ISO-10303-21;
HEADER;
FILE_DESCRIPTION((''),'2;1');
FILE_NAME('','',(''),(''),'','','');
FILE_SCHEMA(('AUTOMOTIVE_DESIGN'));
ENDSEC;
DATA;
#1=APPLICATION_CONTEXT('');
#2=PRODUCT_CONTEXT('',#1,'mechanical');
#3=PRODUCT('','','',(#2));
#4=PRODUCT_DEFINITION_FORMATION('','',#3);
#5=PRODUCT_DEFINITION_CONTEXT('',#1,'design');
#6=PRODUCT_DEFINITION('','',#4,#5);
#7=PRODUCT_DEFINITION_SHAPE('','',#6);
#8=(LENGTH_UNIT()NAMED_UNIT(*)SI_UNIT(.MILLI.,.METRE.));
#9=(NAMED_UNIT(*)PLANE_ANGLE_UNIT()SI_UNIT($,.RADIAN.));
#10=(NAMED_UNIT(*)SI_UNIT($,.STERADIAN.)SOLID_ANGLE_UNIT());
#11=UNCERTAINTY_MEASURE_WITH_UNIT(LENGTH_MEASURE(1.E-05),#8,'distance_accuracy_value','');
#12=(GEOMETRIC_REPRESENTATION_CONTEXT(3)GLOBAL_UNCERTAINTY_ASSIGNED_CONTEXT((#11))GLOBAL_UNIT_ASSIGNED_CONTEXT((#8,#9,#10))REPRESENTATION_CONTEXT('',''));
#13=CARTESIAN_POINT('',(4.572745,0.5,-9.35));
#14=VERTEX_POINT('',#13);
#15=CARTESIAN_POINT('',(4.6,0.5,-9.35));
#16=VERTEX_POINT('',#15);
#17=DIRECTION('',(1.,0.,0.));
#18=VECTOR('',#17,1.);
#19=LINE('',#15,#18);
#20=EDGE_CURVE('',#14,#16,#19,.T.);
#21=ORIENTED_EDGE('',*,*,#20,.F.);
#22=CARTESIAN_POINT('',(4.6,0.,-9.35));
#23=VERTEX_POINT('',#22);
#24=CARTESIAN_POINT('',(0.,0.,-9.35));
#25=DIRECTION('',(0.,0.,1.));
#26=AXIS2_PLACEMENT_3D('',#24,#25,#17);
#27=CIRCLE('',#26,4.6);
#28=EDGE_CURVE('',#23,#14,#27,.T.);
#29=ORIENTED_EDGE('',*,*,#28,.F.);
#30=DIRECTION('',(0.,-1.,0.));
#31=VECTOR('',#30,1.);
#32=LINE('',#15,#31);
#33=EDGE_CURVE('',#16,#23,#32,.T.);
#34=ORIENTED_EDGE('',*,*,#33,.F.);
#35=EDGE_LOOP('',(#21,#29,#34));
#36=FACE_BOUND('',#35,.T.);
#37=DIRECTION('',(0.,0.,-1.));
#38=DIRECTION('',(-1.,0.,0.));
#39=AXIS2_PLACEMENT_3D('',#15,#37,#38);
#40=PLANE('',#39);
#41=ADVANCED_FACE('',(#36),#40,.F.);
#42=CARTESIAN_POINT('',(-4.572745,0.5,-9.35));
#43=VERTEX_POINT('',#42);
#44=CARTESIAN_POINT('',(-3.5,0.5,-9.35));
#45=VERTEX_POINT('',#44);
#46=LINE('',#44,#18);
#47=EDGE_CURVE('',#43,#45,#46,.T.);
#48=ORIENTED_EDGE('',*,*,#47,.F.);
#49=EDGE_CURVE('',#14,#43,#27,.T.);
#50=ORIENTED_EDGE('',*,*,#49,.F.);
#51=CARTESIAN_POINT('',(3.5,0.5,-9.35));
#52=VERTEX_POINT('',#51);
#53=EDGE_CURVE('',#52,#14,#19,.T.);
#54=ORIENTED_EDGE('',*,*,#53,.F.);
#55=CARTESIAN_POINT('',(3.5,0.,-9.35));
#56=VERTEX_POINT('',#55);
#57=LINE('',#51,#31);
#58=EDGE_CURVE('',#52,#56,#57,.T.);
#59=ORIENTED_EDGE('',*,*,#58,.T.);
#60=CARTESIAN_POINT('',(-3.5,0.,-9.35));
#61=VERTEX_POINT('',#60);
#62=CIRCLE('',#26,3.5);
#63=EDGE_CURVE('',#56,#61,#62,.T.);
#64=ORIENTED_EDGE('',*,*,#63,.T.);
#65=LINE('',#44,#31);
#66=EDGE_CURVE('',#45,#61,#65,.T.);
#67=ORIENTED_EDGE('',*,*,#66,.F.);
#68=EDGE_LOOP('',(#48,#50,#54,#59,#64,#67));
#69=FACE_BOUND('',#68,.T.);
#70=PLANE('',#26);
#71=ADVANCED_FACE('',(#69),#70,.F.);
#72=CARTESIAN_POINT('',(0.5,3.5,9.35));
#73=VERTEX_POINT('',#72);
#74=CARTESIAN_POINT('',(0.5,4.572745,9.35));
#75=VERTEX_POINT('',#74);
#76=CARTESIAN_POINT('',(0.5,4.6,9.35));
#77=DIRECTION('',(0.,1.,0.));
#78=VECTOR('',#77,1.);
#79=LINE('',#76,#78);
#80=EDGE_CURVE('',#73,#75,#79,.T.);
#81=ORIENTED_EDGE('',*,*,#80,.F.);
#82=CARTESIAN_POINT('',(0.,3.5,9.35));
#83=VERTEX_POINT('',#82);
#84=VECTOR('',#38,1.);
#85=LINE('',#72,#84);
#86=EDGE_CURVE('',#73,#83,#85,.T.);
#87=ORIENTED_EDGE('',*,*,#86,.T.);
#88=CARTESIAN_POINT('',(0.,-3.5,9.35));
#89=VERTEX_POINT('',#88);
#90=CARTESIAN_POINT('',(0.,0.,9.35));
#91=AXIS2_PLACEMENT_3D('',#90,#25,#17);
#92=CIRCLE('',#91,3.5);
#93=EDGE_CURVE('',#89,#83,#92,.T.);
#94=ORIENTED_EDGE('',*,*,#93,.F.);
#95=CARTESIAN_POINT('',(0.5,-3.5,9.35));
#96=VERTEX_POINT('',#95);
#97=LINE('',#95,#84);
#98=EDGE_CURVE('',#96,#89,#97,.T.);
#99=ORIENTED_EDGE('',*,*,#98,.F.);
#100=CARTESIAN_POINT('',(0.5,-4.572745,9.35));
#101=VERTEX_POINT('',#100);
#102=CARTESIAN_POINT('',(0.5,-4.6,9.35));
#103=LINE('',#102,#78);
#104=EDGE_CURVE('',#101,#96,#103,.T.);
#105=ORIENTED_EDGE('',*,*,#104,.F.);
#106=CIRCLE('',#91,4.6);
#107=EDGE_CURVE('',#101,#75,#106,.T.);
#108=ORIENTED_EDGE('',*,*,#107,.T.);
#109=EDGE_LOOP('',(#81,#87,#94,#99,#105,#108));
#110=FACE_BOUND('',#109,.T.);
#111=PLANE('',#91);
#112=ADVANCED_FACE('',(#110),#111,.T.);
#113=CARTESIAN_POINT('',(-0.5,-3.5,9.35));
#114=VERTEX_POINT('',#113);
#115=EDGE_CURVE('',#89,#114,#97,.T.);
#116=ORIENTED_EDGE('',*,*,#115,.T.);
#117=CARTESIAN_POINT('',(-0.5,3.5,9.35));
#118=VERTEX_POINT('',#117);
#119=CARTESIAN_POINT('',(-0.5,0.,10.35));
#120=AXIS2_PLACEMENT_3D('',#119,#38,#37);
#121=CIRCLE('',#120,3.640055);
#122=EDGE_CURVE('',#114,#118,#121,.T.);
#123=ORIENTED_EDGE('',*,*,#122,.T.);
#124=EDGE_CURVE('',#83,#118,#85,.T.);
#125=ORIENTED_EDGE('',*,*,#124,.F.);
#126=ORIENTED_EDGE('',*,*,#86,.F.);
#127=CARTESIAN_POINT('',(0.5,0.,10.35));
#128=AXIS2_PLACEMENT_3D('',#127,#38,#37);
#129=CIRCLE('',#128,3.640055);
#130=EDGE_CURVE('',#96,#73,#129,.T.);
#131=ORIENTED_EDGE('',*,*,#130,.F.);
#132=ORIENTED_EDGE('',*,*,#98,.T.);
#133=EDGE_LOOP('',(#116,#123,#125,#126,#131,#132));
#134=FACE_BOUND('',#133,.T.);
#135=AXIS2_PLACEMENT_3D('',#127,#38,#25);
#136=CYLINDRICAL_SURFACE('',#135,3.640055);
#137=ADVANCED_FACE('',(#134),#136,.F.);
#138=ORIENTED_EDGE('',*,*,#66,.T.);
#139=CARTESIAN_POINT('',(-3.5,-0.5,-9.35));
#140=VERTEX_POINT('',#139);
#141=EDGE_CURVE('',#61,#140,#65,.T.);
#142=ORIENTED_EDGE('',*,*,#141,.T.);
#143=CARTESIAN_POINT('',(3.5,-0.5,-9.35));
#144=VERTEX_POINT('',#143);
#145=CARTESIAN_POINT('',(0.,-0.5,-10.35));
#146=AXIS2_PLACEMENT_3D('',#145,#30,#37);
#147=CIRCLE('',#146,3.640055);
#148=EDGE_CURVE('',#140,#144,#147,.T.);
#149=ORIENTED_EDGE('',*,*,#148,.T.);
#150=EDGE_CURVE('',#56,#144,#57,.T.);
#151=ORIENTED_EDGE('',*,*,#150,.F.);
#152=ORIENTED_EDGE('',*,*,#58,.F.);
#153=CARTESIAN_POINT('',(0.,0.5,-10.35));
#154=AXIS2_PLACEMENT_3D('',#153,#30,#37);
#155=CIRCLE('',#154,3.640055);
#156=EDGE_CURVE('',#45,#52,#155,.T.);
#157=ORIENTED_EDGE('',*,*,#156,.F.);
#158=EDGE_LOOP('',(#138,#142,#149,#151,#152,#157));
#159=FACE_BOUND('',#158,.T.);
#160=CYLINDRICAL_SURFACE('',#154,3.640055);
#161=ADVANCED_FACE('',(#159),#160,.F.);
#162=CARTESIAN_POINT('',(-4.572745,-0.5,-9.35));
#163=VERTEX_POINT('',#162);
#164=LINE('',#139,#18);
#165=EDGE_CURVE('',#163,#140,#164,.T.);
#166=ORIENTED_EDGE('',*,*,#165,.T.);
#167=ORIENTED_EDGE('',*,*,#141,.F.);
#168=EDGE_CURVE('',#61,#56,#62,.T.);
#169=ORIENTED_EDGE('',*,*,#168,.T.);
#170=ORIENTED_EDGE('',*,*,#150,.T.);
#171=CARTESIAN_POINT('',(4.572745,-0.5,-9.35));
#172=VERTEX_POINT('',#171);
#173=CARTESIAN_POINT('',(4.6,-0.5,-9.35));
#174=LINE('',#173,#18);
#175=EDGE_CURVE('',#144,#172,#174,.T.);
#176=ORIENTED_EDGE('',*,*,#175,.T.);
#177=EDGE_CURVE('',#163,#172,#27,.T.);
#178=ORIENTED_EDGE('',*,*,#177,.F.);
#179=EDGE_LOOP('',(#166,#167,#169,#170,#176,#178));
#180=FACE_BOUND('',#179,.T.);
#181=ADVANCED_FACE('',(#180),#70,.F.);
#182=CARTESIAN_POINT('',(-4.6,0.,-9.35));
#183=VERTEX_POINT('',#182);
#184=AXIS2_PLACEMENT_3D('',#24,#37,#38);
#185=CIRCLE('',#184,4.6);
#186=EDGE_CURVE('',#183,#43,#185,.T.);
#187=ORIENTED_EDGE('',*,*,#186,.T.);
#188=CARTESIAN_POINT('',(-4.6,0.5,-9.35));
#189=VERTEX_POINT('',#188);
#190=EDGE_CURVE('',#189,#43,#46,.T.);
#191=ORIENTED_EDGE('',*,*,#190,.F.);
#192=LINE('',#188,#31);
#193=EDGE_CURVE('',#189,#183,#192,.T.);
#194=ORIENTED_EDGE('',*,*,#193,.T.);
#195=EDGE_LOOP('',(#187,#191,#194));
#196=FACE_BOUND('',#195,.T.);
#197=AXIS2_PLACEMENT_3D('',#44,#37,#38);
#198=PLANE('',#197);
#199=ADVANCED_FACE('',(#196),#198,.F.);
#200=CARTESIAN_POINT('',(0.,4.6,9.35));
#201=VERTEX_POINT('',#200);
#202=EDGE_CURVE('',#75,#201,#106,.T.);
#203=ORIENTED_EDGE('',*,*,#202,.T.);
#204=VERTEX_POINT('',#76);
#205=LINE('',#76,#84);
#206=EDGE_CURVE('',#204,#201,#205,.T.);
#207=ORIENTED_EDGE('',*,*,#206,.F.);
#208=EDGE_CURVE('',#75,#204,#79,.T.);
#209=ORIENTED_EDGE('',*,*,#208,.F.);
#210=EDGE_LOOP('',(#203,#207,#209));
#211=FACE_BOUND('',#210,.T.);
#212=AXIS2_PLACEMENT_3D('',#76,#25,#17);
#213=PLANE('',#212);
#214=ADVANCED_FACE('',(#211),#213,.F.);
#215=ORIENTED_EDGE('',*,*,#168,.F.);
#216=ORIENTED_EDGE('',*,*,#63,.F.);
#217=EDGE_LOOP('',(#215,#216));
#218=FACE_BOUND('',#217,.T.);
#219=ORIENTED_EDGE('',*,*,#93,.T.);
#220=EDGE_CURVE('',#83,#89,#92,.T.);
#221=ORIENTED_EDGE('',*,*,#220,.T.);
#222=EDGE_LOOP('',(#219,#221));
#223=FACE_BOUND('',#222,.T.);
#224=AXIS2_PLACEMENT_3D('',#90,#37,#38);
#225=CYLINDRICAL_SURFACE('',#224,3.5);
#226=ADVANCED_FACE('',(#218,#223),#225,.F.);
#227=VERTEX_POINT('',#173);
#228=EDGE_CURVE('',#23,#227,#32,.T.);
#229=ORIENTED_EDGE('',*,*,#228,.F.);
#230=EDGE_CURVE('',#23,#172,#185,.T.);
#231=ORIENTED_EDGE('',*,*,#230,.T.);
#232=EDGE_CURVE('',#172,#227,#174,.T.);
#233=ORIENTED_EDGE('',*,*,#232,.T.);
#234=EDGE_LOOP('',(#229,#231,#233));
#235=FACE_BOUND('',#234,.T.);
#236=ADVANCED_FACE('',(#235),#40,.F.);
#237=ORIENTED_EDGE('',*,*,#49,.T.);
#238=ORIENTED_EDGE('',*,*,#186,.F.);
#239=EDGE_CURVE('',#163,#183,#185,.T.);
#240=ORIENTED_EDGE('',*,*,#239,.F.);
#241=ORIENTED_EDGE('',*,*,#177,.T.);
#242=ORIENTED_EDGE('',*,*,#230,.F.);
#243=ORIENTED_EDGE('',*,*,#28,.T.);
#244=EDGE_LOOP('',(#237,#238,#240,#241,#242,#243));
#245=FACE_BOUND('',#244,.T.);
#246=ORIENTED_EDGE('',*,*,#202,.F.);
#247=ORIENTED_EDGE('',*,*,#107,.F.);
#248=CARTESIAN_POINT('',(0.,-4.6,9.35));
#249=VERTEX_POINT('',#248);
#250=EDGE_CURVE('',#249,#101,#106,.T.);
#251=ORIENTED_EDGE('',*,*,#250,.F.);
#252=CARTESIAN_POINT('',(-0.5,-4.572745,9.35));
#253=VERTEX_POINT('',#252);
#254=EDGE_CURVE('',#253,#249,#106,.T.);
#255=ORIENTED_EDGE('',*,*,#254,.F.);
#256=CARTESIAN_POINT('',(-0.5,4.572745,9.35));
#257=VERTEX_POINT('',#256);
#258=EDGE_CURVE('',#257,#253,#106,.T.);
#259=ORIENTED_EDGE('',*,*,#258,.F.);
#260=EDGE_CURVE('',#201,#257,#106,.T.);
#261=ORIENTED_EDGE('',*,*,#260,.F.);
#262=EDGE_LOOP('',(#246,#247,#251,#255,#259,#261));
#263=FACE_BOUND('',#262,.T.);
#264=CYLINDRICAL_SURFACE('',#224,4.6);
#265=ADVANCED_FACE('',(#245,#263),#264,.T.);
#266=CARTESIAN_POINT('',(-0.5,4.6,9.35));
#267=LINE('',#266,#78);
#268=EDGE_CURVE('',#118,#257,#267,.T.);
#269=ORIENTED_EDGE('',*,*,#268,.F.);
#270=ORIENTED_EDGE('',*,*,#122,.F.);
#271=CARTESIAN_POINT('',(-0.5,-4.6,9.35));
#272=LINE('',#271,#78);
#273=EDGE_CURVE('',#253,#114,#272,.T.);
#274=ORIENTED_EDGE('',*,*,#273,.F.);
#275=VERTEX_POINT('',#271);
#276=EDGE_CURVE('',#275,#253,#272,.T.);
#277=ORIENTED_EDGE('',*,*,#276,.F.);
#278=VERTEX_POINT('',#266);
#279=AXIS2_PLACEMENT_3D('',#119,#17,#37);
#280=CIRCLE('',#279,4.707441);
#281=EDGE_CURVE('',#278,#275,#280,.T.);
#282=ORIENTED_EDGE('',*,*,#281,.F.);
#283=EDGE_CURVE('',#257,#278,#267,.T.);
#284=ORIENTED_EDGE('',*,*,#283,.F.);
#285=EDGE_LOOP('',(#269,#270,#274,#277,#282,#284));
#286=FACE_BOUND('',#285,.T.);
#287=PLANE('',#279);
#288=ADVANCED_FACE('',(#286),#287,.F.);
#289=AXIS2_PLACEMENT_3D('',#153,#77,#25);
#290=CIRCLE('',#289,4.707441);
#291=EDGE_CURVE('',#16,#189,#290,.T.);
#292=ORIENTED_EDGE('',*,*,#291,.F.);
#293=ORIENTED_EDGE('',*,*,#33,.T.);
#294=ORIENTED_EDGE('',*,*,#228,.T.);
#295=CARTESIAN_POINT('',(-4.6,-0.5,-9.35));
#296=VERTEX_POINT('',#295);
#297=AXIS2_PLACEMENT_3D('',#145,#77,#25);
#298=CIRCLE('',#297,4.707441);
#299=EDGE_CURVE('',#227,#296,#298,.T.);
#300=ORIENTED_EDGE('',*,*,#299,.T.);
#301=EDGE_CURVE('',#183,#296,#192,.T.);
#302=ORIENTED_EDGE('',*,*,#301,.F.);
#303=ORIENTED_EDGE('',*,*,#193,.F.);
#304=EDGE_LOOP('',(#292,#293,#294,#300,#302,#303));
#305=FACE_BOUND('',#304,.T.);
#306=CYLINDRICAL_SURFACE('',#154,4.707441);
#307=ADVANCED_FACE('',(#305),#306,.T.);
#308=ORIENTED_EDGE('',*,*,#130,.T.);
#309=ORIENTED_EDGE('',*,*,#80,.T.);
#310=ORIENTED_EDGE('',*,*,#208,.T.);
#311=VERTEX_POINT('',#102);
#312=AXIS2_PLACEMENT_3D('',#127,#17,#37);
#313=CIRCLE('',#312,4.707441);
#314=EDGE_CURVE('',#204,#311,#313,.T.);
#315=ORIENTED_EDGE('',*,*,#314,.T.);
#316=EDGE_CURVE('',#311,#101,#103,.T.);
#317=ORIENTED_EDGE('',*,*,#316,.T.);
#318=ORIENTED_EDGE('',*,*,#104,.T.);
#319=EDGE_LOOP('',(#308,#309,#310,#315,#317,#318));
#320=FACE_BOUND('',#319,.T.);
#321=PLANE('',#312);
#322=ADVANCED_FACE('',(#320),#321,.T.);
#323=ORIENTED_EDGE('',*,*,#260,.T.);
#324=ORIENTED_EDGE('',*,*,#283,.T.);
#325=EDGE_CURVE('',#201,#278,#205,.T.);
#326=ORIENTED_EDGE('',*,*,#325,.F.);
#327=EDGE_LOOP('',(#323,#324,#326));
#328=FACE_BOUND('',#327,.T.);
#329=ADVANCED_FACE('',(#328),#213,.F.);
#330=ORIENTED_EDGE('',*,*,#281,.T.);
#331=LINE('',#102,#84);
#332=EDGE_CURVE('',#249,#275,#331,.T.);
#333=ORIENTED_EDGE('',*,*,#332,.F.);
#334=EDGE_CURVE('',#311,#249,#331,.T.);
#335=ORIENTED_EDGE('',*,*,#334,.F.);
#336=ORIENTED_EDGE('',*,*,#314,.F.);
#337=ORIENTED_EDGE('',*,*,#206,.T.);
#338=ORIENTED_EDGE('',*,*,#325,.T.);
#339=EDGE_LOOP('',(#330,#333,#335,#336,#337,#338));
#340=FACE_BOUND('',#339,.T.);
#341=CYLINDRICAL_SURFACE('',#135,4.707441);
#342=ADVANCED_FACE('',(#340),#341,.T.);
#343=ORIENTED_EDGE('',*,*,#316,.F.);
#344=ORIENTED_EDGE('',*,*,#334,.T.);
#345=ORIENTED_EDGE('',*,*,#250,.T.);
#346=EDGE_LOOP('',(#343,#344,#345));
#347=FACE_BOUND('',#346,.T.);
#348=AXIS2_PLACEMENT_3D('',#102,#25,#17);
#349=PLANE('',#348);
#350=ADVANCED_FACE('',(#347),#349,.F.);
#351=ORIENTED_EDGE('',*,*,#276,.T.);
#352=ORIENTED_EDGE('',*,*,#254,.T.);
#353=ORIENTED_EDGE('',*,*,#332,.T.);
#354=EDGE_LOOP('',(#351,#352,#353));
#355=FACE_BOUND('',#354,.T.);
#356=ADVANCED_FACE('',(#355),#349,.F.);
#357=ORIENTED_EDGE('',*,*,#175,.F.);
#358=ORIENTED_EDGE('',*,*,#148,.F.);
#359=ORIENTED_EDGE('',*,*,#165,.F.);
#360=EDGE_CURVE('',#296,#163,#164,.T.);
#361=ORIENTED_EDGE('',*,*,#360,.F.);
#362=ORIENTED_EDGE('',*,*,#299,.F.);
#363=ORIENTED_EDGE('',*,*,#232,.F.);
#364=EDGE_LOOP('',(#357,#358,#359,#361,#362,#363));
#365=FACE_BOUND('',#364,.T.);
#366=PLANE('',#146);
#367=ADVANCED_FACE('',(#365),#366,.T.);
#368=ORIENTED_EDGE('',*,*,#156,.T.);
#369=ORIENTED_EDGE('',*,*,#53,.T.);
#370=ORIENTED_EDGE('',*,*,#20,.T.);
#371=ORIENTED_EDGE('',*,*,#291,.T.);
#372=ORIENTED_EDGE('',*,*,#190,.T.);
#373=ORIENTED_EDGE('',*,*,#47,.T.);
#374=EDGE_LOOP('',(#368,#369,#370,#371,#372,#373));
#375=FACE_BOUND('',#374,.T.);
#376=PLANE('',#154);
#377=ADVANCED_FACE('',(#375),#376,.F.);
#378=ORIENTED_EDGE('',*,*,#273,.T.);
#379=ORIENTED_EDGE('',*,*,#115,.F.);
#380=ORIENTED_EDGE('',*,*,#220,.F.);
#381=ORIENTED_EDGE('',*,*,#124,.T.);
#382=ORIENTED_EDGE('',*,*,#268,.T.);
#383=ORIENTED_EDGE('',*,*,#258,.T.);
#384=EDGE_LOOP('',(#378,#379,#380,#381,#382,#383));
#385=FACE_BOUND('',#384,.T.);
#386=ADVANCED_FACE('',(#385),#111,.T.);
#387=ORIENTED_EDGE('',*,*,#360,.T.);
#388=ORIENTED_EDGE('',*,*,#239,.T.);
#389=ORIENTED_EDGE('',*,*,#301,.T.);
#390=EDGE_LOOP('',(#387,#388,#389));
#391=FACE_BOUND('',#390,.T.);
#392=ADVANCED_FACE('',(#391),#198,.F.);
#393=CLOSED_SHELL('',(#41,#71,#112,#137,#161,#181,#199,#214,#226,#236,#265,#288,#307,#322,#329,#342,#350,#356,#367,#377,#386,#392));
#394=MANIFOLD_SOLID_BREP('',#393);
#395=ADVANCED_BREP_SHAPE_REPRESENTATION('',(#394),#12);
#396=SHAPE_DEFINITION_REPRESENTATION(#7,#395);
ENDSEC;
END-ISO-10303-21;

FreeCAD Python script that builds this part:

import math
import FreeCAD as App
import Part
import Sketcher

doc = App.newDocument("Part")
params = doc.addObject("Spreadsheet::Sheet", "Params")
for row, (alias, value) in enumerate([
    ("sketch1_diameter", "7 mm"),
    ("sketch1_diameter2", "9.2 mm"),
    ("pad1_length", "18.7 mm"),
    ("sketch2_width", "1.1 mm"),
    ("pad2_length", "1 mm"),
    ("sketch3_width", "1.1 mm"),
    ("pad3_length", "1 mm"),
], start=1):
    params.set(f"A{row}", alias)
    params.set(f"B{row}", "=" + value)
    params.setAlias(f"B{row}", alias)

body = doc.addObject("PartDesign::Body", "Body")

sketch1 = doc.addObject("Sketcher::SketchObject", "Sketch")
body.addObject(sketch1)
sketch1.AttachmentSupport = (doc.XY_Plane, [""])
sketch1.MapMode = "FlatFace"
sketch1.addGeometry([
    Part.Circle(App.Vector(0, 0, 0), App.Vector(0, 0, 1), 4.6),
    Part.Circle(App.Vector(0, 0, 0), App.Vector(0, 0, 1), 3.5),
], False)
sketch1.addConstraint([
    Sketcher.Constraint("Coincident", 0, 3, -1, 1),
    Sketcher.Constraint("Coincident", 1, 3, -1, 1),
    Sketcher.Constraint("Diameter", 1, 7.0),
    Sketcher.Constraint("Diameter", 0, 9.2),
])
sketch1.setExpression("Constraints[2]", "Params.sketch1_diameter")
sketch1.setExpression("Constraints[3]", "Params.sketch1_diameter2")
pad1 = doc.addObject("PartDesign::Pad", "Pad")
body.addObject(pad1)
pad1.Profile = sketch1
pad1.setExpression("Length", "Params.pad1_length")
pad1.Midplane = True

sketch2 = doc.addObject("Sketcher::SketchObject", "Sketch001")
body.addObject(sketch2)
sketch2.AttachmentSupport = (doc.YZ_Plane, [""])
sketch2.MapMode = "FlatFace"
sketch2.addGeometry([
    Part.LineSegment(App.Vector(-4.6, 9.3, 0), App.Vector(-3.5, 9.3, 0)),
    Part.ArcOfCircle(Part.Circle(App.Vector(0, 10.3, 0), App.Vector(0, 0, 1), 3.6), math.radians(-16), math.radians(196)),
    Part.LineSegment(App.Vector(3.5, 9.3, 0), App.Vector(4.6, 9.3, 0)),
    Part.ArcOfCircle(Part.Circle(App.Vector(0, 10.3, 0), App.Vector(0, 0, 1), 4.7), math.radians(-12), math.radians(192)),
], False)
sketch2.addConstraint([
    Sketcher.Constraint("Coincident", 0, 2, 1, 2),
    Sketcher.Constraint("Coincident", 1, 1, 2, 1),
    Sketcher.Constraint("Coincident", 2, 2, 3, 1),
    Sketcher.Constraint("Coincident", 3, 2, 0, 1),
    Sketcher.Constraint("Horizontal", 0),
    Sketcher.Constraint("Horizontal", 2),
    Sketcher.Constraint("Coincident", 3, 3, 1, 3),
    Sketcher.Constraint("Symmetric", 0, 2, 1, 1, -2),
    Sketcher.Constraint("DistanceX", 0, 1, 0, 2, 1.1),
    Sketcher.Constraint("DistanceY", 0, 2, 1, 3, 1.0),
    Sketcher.Constraint("DistanceX", 0, 2, 1, 1, 7.0),
    Sketcher.Constraint("DistanceY", -1, 1, 1, 3, 10.35),
])
sketch2.setExpression("Constraints[8]", "Params.sketch2_width")
pad2 = doc.addObject("PartDesign::Pad", "Pad001")
body.addObject(pad2)
pad2.Profile = sketch2
pad2.setExpression("Length", "Params.pad2_length")
pad2.Midplane = True

sketch3 = doc.addObject("Sketcher::SketchObject", "Sketch002")
body.addObject(sketch3)
sketch3.AttachmentSupport = (doc.XZ_Plane, [""])
sketch3.MapMode = "FlatFace"
sketch3.addGeometry([
    Part.LineSegment(App.Vector(3.5, -9.3, 0), App.Vector(4.6, -9.3, 0)),
    Part.ArcOfCircle(Part.Circle(App.Vector(0, -10.3, 0), App.Vector(0, 0, 1), 4.7), math.radians(168), math.radians(372)),
    Part.LineSegment(App.Vector(-4.6, -9.3, 0), App.Vector(-3.5, -9.3, 0)),
    Part.ArcOfCircle(Part.Circle(App.Vector(0, -10.3, 0), App.Vector(0, 0, 1), 3.6), math.radians(164), math.radians(376)),
], False)
sketch3.addConstraint([
    Sketcher.Constraint("Coincident", 0, 2, 1, 2),
    Sketcher.Constraint("Coincident", 1, 1, 2, 1),
    Sketcher.Constraint("Coincident", 2, 2, 3, 1),
    Sketcher.Constraint("Coincident", 3, 2, 0, 1),
    Sketcher.Constraint("Horizontal", 0),
    Sketcher.Constraint("Horizontal", 2),
    Sketcher.Constraint("Coincident", 3, 3, 1, 3),
    Sketcher.Constraint("Symmetric", 0, 2, 1, 1, -2),
    Sketcher.Constraint("DistanceX", 0, 1, 0, 2, 1.1),
    Sketcher.Constraint("DistanceY", 1, 3, 0, 2, 1.0),
    Sketcher.Constraint("DistanceX", 2, 2, 3, 2, 7.0),
    Sketcher.Constraint("DistanceY", 1, 3, -1, 1, 10.35),
])
sketch3.setExpression("Constraints[8]", "Params.sketch3_width")
pad3 = doc.addObject("PartDesign::Pad", "Pad002")
body.addObject(pad3)
pad3.Profile = sketch3
pad3.setExpression("Length", "Params.pad3_length")
pad3.Midplane = True

doc.recompute()
